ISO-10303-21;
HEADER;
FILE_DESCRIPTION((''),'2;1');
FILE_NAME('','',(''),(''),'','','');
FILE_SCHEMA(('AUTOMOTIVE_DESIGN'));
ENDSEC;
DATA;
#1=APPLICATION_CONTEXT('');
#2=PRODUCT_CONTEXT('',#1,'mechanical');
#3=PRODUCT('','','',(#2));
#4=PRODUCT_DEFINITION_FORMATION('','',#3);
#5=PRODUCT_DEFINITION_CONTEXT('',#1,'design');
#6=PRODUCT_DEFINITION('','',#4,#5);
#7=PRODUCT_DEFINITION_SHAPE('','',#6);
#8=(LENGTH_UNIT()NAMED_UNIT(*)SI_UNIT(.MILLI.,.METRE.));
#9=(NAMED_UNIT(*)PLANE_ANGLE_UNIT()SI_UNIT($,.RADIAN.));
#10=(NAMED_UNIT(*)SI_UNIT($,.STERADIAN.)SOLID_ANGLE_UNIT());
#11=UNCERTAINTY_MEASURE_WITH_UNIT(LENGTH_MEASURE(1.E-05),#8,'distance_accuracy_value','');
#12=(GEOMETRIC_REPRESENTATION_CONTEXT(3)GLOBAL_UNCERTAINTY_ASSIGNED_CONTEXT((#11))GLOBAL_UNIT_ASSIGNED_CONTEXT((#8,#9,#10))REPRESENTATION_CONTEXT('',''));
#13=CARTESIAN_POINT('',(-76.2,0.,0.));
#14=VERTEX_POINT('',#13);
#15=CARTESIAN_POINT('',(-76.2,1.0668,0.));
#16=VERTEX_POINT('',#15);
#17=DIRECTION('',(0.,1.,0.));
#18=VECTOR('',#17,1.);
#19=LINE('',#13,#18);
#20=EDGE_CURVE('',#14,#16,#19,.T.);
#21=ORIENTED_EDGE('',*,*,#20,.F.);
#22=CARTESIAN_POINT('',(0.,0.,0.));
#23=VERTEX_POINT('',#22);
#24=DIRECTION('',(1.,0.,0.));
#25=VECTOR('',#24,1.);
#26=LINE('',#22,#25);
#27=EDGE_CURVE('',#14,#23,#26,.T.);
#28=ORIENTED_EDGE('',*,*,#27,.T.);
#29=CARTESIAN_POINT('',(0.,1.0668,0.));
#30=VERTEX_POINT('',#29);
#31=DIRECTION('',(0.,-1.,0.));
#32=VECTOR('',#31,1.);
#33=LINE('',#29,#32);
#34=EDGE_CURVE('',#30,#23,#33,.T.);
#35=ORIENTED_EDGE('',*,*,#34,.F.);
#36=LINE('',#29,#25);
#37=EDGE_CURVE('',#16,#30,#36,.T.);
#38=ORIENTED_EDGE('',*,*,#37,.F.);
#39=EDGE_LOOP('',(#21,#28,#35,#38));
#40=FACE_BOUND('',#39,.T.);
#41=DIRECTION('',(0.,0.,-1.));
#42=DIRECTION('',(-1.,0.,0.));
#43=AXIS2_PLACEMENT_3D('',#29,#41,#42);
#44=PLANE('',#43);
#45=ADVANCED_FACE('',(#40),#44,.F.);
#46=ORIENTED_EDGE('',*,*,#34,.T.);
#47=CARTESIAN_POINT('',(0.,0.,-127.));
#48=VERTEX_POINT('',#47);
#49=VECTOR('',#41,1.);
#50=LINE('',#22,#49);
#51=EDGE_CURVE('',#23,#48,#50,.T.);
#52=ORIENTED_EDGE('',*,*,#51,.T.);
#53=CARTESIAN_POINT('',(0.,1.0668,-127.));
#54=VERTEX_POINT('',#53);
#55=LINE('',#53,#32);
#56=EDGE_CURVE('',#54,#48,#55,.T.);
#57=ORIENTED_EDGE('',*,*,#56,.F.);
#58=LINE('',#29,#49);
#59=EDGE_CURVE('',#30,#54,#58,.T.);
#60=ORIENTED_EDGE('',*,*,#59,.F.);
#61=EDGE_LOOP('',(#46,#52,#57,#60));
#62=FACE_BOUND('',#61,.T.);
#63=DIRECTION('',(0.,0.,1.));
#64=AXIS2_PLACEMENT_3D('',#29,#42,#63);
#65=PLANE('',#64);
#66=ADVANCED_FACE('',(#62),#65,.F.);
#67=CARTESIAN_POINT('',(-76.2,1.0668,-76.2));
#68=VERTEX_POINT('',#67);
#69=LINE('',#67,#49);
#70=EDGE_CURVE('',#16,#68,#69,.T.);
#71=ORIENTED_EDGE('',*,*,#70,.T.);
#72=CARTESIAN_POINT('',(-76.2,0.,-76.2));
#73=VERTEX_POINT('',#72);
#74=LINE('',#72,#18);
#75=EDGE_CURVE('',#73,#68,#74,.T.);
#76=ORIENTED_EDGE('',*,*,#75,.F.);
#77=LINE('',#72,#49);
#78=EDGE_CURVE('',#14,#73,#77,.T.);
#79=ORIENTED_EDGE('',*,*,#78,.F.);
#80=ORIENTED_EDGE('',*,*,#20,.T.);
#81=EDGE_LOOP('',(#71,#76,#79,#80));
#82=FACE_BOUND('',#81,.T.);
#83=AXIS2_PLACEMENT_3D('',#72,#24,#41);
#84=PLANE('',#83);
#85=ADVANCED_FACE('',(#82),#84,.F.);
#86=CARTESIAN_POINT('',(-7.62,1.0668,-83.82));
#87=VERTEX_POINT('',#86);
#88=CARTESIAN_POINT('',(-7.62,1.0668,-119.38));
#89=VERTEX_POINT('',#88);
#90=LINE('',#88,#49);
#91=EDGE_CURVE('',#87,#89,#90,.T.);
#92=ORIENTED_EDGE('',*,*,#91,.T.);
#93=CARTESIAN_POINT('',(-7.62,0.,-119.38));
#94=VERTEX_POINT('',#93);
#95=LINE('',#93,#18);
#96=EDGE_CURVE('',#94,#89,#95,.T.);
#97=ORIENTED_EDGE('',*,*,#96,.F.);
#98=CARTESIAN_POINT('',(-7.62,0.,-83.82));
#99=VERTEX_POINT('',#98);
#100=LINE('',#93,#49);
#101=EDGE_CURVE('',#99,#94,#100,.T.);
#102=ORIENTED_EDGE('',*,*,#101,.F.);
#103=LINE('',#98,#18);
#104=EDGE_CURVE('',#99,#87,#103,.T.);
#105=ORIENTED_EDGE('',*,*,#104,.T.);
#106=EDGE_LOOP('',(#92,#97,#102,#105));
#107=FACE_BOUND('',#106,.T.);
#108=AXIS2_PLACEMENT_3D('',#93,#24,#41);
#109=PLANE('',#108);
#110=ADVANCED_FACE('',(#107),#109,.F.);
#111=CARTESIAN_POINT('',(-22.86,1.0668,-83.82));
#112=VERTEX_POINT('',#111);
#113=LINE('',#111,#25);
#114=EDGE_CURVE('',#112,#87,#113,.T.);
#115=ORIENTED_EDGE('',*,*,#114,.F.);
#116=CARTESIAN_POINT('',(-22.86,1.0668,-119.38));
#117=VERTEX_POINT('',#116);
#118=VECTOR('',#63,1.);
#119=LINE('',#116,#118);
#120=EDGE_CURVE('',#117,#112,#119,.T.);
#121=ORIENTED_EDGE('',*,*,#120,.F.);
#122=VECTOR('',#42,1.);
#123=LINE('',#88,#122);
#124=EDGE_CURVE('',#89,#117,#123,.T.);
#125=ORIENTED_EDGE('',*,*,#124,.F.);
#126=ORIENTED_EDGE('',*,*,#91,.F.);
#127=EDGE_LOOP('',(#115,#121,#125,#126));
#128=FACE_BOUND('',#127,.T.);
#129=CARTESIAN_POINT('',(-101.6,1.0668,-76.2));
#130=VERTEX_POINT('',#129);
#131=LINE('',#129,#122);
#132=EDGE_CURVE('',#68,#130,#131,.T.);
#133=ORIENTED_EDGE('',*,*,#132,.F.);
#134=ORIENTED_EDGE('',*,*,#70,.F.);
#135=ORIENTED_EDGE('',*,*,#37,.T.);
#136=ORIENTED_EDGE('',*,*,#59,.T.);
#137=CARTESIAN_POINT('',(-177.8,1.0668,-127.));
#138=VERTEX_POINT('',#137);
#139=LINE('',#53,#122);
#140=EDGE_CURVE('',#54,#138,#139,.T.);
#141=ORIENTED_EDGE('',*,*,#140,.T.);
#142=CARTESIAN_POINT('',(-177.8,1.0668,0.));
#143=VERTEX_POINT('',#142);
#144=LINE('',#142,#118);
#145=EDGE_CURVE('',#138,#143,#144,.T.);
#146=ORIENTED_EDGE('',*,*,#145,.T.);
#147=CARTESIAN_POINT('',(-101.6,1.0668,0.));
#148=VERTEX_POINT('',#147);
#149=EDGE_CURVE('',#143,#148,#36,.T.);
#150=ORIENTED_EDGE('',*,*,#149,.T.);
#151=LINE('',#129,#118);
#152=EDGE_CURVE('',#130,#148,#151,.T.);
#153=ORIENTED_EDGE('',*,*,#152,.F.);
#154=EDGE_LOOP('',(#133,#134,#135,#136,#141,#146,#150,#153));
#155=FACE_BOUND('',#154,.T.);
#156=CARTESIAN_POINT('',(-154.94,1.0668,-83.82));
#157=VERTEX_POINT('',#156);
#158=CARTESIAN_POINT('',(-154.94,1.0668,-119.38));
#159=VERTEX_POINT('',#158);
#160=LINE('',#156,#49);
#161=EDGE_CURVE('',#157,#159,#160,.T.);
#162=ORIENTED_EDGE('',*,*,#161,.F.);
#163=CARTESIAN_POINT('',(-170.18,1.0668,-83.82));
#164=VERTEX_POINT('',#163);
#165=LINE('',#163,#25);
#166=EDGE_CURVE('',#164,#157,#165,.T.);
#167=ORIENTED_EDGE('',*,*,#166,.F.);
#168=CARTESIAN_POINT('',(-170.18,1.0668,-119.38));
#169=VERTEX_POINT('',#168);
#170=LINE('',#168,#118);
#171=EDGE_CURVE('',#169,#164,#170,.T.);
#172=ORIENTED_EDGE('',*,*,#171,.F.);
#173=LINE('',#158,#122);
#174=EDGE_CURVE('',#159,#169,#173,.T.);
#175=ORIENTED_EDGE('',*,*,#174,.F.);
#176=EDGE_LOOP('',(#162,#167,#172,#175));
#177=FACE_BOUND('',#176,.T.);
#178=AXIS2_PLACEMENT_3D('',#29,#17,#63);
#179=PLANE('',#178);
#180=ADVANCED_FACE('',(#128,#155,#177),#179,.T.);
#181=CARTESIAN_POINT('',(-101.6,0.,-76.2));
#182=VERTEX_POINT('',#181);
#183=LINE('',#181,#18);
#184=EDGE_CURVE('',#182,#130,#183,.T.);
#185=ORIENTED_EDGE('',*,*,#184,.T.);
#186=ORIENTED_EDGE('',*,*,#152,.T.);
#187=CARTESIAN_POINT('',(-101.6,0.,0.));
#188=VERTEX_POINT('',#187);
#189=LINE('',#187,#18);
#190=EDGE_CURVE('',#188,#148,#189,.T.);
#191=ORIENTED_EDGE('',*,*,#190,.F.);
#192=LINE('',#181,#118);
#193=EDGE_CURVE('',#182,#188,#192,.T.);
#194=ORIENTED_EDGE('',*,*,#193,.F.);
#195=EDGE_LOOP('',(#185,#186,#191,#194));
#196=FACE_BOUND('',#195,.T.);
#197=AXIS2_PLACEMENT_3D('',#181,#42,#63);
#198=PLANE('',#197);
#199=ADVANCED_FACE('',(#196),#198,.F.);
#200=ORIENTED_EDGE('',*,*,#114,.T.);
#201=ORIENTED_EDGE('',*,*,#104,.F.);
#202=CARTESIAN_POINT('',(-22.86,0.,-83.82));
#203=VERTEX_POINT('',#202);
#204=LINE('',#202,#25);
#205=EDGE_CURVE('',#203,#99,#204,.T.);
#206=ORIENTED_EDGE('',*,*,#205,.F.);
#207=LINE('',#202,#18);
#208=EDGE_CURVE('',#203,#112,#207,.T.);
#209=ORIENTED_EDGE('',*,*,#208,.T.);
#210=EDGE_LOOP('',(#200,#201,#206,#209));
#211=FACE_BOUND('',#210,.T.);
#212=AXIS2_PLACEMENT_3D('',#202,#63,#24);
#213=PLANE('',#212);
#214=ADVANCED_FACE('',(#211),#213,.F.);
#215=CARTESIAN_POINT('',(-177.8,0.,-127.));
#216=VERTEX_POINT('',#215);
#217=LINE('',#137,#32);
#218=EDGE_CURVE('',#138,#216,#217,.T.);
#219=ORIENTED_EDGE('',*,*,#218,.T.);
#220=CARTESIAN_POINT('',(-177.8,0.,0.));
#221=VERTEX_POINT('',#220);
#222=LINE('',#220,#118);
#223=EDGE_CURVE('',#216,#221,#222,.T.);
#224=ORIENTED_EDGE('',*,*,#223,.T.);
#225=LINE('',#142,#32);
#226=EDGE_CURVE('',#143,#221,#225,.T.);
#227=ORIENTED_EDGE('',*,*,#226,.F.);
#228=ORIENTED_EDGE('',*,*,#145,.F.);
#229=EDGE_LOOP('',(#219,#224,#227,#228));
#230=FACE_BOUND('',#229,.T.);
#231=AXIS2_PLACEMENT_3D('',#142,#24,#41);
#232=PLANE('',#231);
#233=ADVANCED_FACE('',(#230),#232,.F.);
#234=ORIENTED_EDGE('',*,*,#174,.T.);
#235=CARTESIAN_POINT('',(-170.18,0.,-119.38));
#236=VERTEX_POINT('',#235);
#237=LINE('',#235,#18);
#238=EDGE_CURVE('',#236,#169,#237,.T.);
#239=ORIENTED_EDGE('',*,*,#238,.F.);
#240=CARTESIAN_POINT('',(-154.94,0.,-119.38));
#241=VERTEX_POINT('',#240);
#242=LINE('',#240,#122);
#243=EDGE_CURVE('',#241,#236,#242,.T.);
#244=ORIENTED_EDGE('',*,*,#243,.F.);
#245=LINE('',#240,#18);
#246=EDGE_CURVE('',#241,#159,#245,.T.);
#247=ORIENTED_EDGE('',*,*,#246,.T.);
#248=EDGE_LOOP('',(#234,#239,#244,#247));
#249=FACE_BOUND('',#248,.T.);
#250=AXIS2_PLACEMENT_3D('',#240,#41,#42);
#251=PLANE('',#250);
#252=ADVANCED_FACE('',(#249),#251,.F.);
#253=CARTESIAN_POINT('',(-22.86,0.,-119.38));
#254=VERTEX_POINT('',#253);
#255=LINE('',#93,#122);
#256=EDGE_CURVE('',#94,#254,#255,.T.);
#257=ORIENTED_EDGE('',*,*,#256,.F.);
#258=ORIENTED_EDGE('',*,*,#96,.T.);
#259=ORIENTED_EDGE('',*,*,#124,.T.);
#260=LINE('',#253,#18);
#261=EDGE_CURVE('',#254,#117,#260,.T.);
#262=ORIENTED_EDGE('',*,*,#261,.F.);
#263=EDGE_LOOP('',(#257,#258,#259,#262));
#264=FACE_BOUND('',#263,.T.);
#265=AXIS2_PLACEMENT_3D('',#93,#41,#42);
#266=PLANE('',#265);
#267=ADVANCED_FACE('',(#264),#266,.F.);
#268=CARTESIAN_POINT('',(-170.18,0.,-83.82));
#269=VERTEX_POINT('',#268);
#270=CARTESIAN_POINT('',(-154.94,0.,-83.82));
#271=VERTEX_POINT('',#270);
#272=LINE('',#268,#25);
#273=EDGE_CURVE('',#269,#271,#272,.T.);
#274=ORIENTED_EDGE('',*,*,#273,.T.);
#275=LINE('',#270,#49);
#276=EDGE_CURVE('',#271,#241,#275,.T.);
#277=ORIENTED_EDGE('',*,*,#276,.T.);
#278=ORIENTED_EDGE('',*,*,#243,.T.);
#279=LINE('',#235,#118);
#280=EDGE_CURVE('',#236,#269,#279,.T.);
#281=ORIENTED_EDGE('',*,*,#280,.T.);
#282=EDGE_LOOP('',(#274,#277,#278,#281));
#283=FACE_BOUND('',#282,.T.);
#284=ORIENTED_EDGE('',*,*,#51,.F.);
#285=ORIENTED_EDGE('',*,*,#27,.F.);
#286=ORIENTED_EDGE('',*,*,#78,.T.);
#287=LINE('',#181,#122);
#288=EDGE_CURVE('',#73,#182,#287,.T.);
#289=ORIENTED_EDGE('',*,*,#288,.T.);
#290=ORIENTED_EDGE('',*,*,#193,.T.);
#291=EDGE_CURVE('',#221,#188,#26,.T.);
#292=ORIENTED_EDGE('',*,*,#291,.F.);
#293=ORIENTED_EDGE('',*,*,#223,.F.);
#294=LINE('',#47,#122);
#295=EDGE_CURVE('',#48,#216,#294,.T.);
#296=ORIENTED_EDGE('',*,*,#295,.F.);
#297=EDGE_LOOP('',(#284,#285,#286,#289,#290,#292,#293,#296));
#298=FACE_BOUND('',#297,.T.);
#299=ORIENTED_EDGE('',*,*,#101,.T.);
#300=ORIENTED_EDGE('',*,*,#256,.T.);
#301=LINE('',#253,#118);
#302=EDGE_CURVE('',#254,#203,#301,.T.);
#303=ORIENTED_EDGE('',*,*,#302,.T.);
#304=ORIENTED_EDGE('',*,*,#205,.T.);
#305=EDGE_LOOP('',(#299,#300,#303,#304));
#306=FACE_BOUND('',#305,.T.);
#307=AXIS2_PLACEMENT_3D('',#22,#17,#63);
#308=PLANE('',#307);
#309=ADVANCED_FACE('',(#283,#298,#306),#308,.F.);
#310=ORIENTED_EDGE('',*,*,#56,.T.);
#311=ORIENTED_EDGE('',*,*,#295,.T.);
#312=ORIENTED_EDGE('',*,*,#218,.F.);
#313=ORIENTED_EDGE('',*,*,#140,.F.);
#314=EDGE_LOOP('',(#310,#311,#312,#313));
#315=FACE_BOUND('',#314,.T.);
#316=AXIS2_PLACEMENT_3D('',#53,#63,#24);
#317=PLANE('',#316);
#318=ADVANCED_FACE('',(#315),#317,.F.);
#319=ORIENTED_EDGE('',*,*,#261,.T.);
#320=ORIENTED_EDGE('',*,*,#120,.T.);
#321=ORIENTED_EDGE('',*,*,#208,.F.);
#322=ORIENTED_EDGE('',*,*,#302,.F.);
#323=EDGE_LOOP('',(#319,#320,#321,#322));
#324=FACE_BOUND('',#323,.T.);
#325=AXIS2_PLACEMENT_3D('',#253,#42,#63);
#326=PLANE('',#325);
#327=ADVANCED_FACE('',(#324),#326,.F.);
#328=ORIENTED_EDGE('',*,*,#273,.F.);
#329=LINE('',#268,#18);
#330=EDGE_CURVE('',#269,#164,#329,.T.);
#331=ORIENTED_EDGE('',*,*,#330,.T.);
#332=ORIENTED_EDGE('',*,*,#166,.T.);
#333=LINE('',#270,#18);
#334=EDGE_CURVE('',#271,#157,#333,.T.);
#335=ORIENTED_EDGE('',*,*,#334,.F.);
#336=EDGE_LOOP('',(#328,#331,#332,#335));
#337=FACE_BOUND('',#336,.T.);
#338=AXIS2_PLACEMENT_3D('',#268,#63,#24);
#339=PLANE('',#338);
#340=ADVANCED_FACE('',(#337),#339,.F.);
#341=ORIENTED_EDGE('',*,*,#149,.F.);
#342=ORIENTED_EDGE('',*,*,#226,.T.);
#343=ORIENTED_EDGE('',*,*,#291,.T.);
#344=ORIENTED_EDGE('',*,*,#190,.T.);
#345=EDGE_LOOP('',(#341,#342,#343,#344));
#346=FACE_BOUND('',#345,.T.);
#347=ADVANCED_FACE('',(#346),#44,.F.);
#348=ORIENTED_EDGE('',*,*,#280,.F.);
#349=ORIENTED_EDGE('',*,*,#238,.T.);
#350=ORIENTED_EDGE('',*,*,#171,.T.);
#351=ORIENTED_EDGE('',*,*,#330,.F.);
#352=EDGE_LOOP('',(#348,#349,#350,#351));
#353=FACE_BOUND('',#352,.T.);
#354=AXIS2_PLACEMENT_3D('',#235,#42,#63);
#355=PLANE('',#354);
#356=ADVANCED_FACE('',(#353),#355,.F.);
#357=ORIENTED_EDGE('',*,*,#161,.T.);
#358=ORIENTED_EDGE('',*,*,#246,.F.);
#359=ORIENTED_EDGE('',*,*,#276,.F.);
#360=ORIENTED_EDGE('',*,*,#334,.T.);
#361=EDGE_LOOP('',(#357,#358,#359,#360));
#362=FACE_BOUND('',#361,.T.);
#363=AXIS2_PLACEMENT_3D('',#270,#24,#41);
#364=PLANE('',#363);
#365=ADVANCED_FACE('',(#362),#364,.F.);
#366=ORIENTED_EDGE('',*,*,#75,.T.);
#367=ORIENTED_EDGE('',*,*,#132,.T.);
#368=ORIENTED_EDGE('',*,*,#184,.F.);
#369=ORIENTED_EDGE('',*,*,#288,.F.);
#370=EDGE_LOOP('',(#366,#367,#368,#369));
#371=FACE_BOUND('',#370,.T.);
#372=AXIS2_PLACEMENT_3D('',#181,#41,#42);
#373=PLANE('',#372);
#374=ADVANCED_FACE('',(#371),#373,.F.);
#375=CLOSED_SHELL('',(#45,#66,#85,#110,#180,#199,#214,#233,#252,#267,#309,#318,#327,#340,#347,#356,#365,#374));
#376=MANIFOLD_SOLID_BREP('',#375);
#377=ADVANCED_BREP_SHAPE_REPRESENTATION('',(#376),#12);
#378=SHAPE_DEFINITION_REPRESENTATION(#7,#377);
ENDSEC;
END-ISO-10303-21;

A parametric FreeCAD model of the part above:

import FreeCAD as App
import Part
import Sketcher

V = App.Vector
Q = App.Units.Quantity

doc = App.newDocument("Part")
body = doc.addObject("PartDesign::Body", "Body")

# Sketch on XZ plane
sketch1 = body.newObject("Sketcher::SketchObject", "Sketch")
sketch1.AttachmentSupport = (doc.getObject("XZ_Plane"), [""])
sketch1.MapMode = "FlatFace"
sketch1.addGeometry(Part.LineSegment(V(-178, -127, 0), V(-178, 0, 0)), False)
sketch1.addGeometry(Part.LineSegment(V(-178, 0, 0), V(0, 0, 0)), False)
sketch1.addGeometry(Part.LineSegment(V(0, 0, 0), V(0, -127, 0)), False)
sketch1.addGeometry(Part.LineSegment(V(0, -127, 0), V(-178, -127, 0)), False)
sketch1.addConstraint(Sketcher.Constraint("Coincident", 0, 2, 1, 1))
sketch1.addConstraint(Sketcher.Constraint("Coincident", 1, 2, 2, 1))
sketch1.addConstraint(Sketcher.Constraint("Coincident", 2, 2, 3, 1))
sketch1.addConstraint(Sketcher.Constraint("Coincident", 3, 2, 0, 1))
sketch1.addConstraint(Sketcher.Constraint("Vertical", 0))
sketch1.addConstraint(Sketcher.Constraint("Horizontal", 1))
sketch1.addConstraint(Sketcher.Constraint("Vertical", 2))
sketch1.addConstraint(Sketcher.Constraint("Horizontal", 3))
sketch1.addConstraint(Sketcher.Constraint("Coincident", 1, 2, -1, 1))
sketch1.addConstraint(Sketcher.Constraint("DistanceX", 1, 1, 1, 2, Q("7 in")))
sketch1.addConstraint(Sketcher.Constraint("DistanceY", 0, 1, 0, 2, Q("5 in")))
pad1 = body.newObject("PartDesign::Pad", "Pad")
pad1.Profile = sketch1
pad1.Length = Q("0.042 in")
pad1.Reversed = True

# Sketch on XZ plane
sketch2 = body.newObject("Sketcher::SketchObject", "Sketch001")
sketch2.AttachmentSupport = (doc.getObject("XZ_Plane"), [""])
sketch2.MapMode = "FlatFace"
sketch2.AttachmentOffset = App.Placement(V(0, 0, -0.042 * 25.4), App.Rotation())
sketch2.addGeometry(Part.LineSegment(V(-102, -76, 0), V(-102, 0, 0)), False)
sketch2.addGeometry(Part.LineSegment(V(-102, 0, 0), V(-76, 0, 0)), False)
sketch2.addGeometry(Part.LineSegment(V(-76, 0, 0), V(-76, -76, 0)), False)
sketch2.addGeometry(Part.LineSegment(V(-76, -76, 0), V(-102, -76, 0)), False)
sketch2.addGeometry(Part.LineSegment(V(-170, -119, 0), V(-170, -84, 0)), False)
sketch2.addGeometry(Part.LineSegment(V(-170, -84, 0), V(-155, -84, 0)), False)
sketch2.addGeometry(Part.LineSegment(V(-155, -84, 0), V(-155, -119, 0)), False)
sketch2.addGeometry(Part.LineSegment(V(-155, -119, 0), V(-170, -119, 0)), False)
sketch2.addGeometry(Part.LineSegment(V(-23, -119, 0), V(-23, -84, 0)), False)
sketch2.addGeometry(Part.LineSegment(V(-23, -84, 0), V(-8, -84, 0)), False)
sketch2.addGeometry(Part.LineSegment(V(-8, -84, 0), V(-8, -119, 0)), False)
sketch2.addGeometry(Part.LineSegment(V(-8, -119, 0), V(-23, -119, 0)), False)
sketch2.addConstraint(Sketcher.Constraint("Coincident", 0, 2, 1, 1))
sketch2.addConstraint(Sketcher.Constraint("Coincident", 1, 2, 2, 1))
sketch2.addConstraint(Sketcher.Constraint("Coincident", 2, 2, 3, 1))
sketch2.addConstraint(Sketcher.Constraint("Coincident", 3, 2, 0, 1))
sketch2.addConstraint(Sketcher.Constraint("Coincident", 4, 2, 5, 1))
sketch2.addConstraint(Sketcher.Constraint("Coincident", 5, 2, 6, 1))
sketch2.addConstraint(Sketcher.Constraint("Coincident", 6, 2, 7, 1))
sketch2.addConstraint(Sketcher.Constraint("Coincident", 7, 2, 4, 1))
sketch2.addConstraint(Sketcher.Constraint("Coincident", 8, 2, 9, 1))
sketch2.addConstraint(Sketcher.Constraint("Coincident", 9, 2, 10, 1))
sketch2.addConstraint(Sketcher.Constraint("Coincident", 10, 2, 11, 1))
sketch2.addConstraint(Sketcher.Constraint("Coincident", 11, 2, 8, 1))
sketch2.addConstraint(Sketcher.Constraint("Vertical", 0))
sketch2.addConstraint(Sketcher.Constraint("Horizontal", 1))
sketch2.addConstraint(Sketcher.Constraint("Vertical", 2))
sketch2.addConstraint(Sketcher.Constraint("Horizontal", 3))
sketch2.addConstraint(Sketcher.Constraint("Vertical", 4))
sketch2.addConstraint(Sketcher.Constraint("Horizontal", 5))
sketch2.addConstraint(Sketcher.Constraint("Vertical", 6))
sketch2.addConstraint(Sketcher.Constraint("Horizontal", 7))
sketch2.addConstraint(Sketcher.Constraint("Vertical", 8))
sketch2.addConstraint(Sketcher.Constraint("Horizontal", 9))
sketch2.addConstraint(Sketcher.Constraint("Vertical", 10))
sketch2.addConstraint(Sketcher.Constraint("Horizontal", 11))
sketch2.addConstraint(Sketcher.Constraint("PointOnObject", 0, 2, -1))
sketch2.addConstraint(Sketcher.Constraint("Horizontal", 5, 2, 8, 2))
sketch2.addConstraint(Sketcher.Constraint("Horizontal", 7, 2, 10, 2))
sketch2.addConstraint(Sketcher.Constraint("Equal", 7, 9))
sketch2.addConstraint(Sketcher.Constraint("DistanceX", 1, 1, 1, 2, Q("1 in")))
sketch2.addConstraint(Sketcher.Constraint("DistanceY", 0, 1, 0, 2, Q("3 in")))
sketch2.addConstraint(Sketcher.Constraint("DistanceX", 5, 1, 5, 2, Q("0.6 in")))
sketch2.addConstraint(Sketcher.Constraint("DistanceY", 4, 1, 4, 2, Q("1.4 in")))
sketch2.addConstraint(Sketcher.Constraint("DistanceX", 0, 2, -1, 1, Q("4 in")))
sketch2.addConstraint(Sketcher.Constraint("DistanceX", 4, 2, -1, 1, Q("6.7 in")))
sketch2.addConstraint(Sketcher.Constraint("DistanceY", 4, 2, -1, 1, Q("3.3 in")))
sketch2.addConstraint(Sketcher.Constraint("DistanceX", 8, 2, -1, 1, Q("0.9 in")))
pocket1 = body.newObject("PartDesign::Pocket", "Pocket")
pocket1.Profile = sketch2
pocket1.Type = "ThroughAll"
pocket1.Reversed = True

doc.recompute()
